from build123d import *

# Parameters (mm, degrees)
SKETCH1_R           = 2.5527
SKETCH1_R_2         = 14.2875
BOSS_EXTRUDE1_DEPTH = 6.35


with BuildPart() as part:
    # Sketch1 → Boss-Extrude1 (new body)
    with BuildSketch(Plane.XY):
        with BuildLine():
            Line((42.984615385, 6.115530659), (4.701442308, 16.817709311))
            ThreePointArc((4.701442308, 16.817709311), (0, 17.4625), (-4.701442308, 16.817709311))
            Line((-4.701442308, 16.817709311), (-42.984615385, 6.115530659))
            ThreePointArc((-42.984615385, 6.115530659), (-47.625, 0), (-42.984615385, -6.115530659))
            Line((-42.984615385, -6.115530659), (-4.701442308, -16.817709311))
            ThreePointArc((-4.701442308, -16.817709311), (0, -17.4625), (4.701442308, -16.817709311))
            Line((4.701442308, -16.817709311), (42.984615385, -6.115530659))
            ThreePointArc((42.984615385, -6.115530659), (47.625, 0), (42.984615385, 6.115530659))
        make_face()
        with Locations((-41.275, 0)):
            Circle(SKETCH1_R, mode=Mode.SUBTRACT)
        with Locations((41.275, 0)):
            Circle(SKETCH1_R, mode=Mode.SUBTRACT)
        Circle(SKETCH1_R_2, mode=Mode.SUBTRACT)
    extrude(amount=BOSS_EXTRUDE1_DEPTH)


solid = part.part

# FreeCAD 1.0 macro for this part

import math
import FreeCAD as App
import Part
import Sketcher

V = App.Vector
Q = App.Units.Quantity

doc = App.newDocument("Part")
body = doc.addObject("PartDesign::Body", "Body")

sketch1 = body.newObject("Sketcher::SketchObject", "Sketch")
sketch1.AttachmentSupport = (doc.getObject("XY_Plane"), [""])
sketch1.MapMode = "FlatFace"
sketch1.addGeometry([
    Part.LineSegment(V(43, 6.1, 0), V(4.7, 16.8, 0)),
    Part.ArcOfCircle(Part.Circle(V(0, 0, 0), V(0, 0, 1), 17.5), math.radians(74), math.radians(106)),
    Part.LineSegment(V(-4.7, 16.8, 0), V(-43, 6.1, 0)),
    Part.ArcOfCircle(Part.Circle(V(-41.3, 0, 0), V(0, 0, 1), 6.4), math.radians(106), math.radians(254)),
    Part.LineSegment(V(-43, -6.1, 0), V(-4.7, -16.8, 0)),
    Part.ArcOfCircle(Part.Circle(V(0, 0, 0), V(0, 0, 1), 17.5), math.radians(-106), math.radians(-74)),
    Part.LineSegment(V(4.7, -16.8, 0), V(43, -6.1, 0)),
    Part.ArcOfCircle(Part.Circle(V(41.3, 0, 0), V(0, 0, 1), 6.4), math.radians(-74), math.radians(74)),
    Part.Circle(V(-41.3, 0, 0), V(0, 0, 1), 2.6),
    Part.Circle(V(41.3, 0, 0), V(0, 0, 1), 2.6),
    Part.Circle(V(0, 0, 0), V(0, 0, 1), 14.3),
], False)
sketch1.addConstraint([
    Sketcher.Constraint("Tangent", 0, 2, 1, 1),
    Sketcher.Constraint("Tangent", 1, 2, 2, 1),
    Sketcher.Constraint("Tangent", 2, 2, 3, 1),
    Sketcher.Constraint("Tangent", 3, 2, 4, 1),
    Sketcher.Constraint("Tangent", 4, 2, 5, 1),
    Sketcher.Constraint("Tangent", 5, 2, 6, 1),
    Sketcher.Constraint("Tangent", 6, 2, 7, 1),
    Sketcher.Constraint("Tangent", 7, 2, 0, 1),
    Sketcher.Constraint("Coincident", 1, 3, -1, 1),
    Sketcher.Constraint("Coincident", 5, 3, -1, 1),
    Sketcher.Constraint("Coincident", 10, 3, -1, 1),
    Sketcher.Constraint("Coincident", 8, 3, 3, 3),
    Sketcher.Constraint("Coincident", 9, 3, 7, 3),
    Sketcher.Constraint("Equal", 1, 5),
    Sketcher.Constraint("Equal", 3, 7),
    Sketcher.Constraint("Equal", 8, 9),
    Sketcher.Constraint("Symmetric", 3, 3, 7, 3, -1, 1),
    Sketcher.Constraint("PointOnObject", 3, 3, -1),
    Sketcher.Constraint("Radius", 3, Q("0.25 in")),
    Sketcher.Constraint("Diameter", 8, Q("0.201 in")),
    Sketcher.Constraint("Diameter", 10, Q("1.125 in")),
    Sketcher.Constraint("Radius", 1, Q("0.6875 in")),
    Sketcher.Constraint("DistanceX", 3, 3, 7, 3, Q("3.25 in")),
])
pad1 = body.newObject("PartDesign::Pad", "Pad")
pad1.Profile = sketch1
pad1.Length = Q("0.25 in")

doc.recompute()
